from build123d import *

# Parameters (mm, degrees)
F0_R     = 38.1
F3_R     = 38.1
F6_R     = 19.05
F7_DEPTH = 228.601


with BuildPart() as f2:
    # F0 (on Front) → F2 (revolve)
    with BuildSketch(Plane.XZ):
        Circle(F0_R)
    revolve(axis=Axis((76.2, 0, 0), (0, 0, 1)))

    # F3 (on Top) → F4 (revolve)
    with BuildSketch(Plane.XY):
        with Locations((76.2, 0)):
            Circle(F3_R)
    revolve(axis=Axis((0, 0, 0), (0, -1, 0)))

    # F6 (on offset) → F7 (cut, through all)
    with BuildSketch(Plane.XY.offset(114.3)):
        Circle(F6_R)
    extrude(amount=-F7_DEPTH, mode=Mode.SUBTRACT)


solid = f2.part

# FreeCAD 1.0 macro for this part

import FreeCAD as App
import Part
import Sketcher

V = App.Vector
Q = App.Units.Quantity

doc = App.newDocument("Part")
body = doc.addObject("PartDesign::Body", "Body")
body.AllowCompound = True

sketch1 = doc.addObject("Sketcher::SketchObject", "Sketch")
body.addObject(sketch1)
sketch1.AttachmentSupport = (doc.XZ_Plane, [""])
sketch1.MapMode = "FlatFace"
sketch1.addGeometry(Part.Circle(V(0, 0, 0), V(0, 0, 1), 38), False)
sketch1.addGeometry(Part.LineSegment(V(76, 0, 0), V(76, 10, 0)), True)
sketch1.addConstraint([
    Sketcher.Constraint("Vertical", 1),
    Sketcher.Constraint("Coincident", 0, 3, -1, 1),
    Sketcher.Constraint("PointOnObject", 1, 1, -1),
    Sketcher.Constraint("Diameter", 0, Q("3 in")),
    Sketcher.Constraint("DistanceX", -1, 1, 1, 1, Q("3 in")),
    Sketcher.Constraint("DistanceY", 1, 1, 1, 2, 10.0),
])
revolution = doc.addObject("PartDesign::Revolution", "Revolution")
body.addObject(revolution)
revolution.Profile = sketch1
revolution.ReferenceAxis = (sketch1, ["Axis0"])
revolution.Angle = 360

sketch2 = doc.addObject("Sketcher::SketchObject", "Sketch001")
body.addObject(sketch2)
sketch2.AttachmentSupport = (doc.XY_Plane, [""])
sketch2.MapMode = "FlatFace"
sketch2.addGeometry(Part.Circle(V(76, 0, 0), V(0, 0, 1), 38), False)
sketch2.addConstraint([
    Sketcher.Constraint("PointOnObject", 0, 3, -1),
    Sketcher.Constraint("Diameter", 0, Q("3 in")),
    Sketcher.Constraint("DistanceX", -1, 1, 0, 3, Q("3 in")),
])
revolution2 = doc.addObject("PartDesign::Revolution", "Revolution001")
body.addObject(revolution2)
revolution2.Profile = sketch2
revolution2.ReferenceAxis = (sketch2, ["V_Axis"])
revolution2.Angle = 360

sketch3 = doc.addObject("Sketcher::SketchObject", "Sketch002")
body.addObject(sketch3)
sketch3.AttachmentSupport = (doc.XY_Plane, [""])
sketch3.MapMode = "FlatFace"
sketch3.AttachmentOffset = App.Placement(V(0, 0, 4.5 * 25.4), App.Rotation())
sketch3.addGeometry(Part.Circle(V(0, 0, 0), V(0, 0, 1), 19), False)
sketch3.addConstraint([
    Sketcher.Constraint("Coincident", 0, 3, -1, 1),
    Sketcher.Constraint("Diameter", 0, Q("1.5 in")),
])
pocket1 = doc.addObject("PartDesign::Pocket", "Pocket")
body.addObject(pocket1)
pocket1.Profile = sketch3
pocket1.Type = "ThroughAll"

doc.recompute()
